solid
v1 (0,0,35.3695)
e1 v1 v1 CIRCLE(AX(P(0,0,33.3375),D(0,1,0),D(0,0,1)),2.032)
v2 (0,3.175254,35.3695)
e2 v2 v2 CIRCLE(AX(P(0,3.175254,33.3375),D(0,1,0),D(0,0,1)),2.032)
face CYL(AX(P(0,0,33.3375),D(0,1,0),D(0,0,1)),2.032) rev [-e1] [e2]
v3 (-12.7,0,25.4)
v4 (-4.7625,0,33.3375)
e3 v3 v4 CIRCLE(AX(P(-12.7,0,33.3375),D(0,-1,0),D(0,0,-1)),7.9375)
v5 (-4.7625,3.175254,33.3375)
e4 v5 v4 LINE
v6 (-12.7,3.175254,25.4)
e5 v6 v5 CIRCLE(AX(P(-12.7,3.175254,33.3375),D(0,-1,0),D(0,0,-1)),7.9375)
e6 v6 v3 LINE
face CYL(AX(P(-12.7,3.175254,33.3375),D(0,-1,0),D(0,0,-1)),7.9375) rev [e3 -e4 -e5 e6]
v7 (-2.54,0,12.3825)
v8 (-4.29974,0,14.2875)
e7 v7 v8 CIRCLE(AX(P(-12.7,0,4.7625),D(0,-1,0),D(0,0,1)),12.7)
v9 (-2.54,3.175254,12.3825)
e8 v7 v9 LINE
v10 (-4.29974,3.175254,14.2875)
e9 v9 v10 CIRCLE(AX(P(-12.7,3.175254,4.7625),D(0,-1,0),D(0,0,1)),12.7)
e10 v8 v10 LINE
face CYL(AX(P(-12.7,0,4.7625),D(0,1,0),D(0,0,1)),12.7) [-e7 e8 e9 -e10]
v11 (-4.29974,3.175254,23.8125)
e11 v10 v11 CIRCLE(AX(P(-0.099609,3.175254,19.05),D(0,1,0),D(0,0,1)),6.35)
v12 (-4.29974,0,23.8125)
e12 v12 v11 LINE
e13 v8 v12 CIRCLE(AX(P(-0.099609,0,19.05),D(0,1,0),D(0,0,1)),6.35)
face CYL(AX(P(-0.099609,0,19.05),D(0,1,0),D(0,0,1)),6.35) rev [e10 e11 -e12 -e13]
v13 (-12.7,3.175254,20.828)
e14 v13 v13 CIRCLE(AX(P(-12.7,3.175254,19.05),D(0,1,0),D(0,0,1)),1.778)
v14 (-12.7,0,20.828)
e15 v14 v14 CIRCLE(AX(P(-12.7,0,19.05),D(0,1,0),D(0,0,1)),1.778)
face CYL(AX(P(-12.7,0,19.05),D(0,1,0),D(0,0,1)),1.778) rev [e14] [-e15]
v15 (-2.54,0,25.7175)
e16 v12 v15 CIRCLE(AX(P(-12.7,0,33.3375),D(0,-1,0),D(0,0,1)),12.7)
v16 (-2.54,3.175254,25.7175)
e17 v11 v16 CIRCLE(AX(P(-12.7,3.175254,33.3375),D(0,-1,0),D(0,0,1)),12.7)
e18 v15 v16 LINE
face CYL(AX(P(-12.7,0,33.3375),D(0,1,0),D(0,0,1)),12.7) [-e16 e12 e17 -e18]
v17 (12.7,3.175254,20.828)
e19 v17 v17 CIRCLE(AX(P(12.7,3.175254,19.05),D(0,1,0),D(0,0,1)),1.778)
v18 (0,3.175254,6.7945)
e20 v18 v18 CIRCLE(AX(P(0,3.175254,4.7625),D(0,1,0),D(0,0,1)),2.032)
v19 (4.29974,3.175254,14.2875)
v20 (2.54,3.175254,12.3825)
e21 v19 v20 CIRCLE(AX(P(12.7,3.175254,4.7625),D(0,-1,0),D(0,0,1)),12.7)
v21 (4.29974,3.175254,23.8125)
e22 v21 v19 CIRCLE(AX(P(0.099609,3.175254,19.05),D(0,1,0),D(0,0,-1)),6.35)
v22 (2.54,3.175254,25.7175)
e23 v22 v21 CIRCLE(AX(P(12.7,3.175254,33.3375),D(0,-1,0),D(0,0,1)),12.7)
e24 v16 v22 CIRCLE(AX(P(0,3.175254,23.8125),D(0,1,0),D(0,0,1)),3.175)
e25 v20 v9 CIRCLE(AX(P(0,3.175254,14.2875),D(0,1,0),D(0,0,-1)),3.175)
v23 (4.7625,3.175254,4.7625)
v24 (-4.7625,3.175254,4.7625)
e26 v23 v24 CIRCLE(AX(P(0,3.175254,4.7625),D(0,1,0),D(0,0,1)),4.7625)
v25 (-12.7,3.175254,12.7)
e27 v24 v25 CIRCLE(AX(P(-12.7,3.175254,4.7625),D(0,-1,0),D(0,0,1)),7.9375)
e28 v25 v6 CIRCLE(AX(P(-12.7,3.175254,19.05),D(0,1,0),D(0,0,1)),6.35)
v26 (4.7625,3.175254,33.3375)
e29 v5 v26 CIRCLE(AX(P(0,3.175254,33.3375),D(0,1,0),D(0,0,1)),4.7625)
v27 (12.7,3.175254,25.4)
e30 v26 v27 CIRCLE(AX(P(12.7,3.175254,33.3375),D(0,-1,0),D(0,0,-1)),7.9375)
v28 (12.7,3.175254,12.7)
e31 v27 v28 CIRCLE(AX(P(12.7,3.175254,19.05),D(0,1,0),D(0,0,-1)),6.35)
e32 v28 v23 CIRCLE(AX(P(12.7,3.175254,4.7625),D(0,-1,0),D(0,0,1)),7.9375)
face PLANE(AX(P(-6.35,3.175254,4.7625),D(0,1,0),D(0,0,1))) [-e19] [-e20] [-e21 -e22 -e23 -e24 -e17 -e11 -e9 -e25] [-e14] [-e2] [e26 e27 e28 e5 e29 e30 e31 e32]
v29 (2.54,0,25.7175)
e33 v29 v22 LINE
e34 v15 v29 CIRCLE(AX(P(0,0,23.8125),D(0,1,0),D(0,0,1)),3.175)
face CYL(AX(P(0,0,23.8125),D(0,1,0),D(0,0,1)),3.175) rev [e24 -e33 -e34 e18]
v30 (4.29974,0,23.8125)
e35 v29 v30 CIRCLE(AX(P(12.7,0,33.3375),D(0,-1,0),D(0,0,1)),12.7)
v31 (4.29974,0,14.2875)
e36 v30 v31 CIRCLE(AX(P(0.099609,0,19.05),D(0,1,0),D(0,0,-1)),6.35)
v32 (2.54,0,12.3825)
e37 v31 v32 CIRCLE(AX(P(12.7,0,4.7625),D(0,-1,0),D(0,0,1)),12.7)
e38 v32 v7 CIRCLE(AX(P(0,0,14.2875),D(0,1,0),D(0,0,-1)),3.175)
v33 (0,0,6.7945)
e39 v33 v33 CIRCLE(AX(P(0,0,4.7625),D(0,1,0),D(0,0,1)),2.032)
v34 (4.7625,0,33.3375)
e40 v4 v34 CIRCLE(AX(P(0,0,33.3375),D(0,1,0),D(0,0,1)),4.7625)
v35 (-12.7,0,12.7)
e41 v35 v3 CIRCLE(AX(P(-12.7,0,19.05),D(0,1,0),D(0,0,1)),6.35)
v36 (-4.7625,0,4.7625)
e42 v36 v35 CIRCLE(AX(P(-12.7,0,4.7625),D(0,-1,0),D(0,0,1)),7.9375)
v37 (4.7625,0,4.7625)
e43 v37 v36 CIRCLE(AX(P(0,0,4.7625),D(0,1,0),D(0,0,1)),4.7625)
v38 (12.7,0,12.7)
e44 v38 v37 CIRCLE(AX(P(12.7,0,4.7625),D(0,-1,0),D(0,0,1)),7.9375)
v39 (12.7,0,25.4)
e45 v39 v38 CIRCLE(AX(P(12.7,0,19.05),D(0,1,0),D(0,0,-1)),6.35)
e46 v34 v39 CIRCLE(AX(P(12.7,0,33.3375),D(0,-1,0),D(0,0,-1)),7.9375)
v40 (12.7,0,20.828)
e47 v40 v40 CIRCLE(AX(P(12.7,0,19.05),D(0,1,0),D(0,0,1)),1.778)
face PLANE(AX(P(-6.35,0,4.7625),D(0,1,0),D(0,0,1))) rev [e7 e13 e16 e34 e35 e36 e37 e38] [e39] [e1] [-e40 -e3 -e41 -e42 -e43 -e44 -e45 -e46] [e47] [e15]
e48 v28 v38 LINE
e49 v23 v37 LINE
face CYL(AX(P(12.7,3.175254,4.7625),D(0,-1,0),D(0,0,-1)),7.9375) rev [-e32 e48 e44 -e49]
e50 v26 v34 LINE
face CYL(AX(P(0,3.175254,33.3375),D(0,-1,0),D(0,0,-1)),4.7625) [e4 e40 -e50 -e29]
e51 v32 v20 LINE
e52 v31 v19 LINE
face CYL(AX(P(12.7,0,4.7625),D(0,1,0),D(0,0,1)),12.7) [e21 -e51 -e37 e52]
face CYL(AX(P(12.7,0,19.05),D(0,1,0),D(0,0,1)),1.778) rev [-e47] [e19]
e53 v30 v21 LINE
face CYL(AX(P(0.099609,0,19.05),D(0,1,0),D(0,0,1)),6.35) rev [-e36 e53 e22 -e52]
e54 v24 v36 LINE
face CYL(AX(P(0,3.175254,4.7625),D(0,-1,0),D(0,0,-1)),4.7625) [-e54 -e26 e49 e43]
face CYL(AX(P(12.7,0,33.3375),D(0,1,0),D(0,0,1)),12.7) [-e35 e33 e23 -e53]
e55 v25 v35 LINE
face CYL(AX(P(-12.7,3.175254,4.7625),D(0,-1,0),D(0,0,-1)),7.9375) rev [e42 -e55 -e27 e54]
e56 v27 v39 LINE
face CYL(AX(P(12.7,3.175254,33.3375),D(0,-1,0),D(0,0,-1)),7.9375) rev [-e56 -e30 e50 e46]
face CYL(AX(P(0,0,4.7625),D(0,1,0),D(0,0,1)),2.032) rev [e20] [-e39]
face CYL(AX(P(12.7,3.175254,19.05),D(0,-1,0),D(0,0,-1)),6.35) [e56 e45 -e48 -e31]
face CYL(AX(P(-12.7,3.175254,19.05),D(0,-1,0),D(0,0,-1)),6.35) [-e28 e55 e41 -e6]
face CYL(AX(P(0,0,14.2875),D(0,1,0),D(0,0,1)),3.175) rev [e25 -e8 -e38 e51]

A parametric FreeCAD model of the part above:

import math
import FreeCAD as App
import Part
import Sketcher

V = App.Vector
Q = App.Units.Quantity

doc = App.newDocument("Part")
body = doc.addObject("PartDesign::Body", "Body")

# Sketch on XZ plane
sketch1 = doc.addObject("Sketcher::SketchObject", "Sketch")
body.addObject(sketch1)
sketch1.AttachmentSupport = (doc.XZ_Plane, [""])
sketch1.MapMode = "FlatFace"
sketch1.addGeometry(Part.ArcOfCircle(Part.Circle(V(0, 4.8, 0), V(0, 0, 1), 4.8), math.radians(180), math.radians(360)), False)
sketch1.addGeometry(Part.ArcOfCircle(Part.Circle(V(-12.7, 4.8, 0), V(0, 0, 1), 7.9), math.radians(0), math.radians(90)), False)
sketch1.addGeometry(Part.ArcOfCircle(Part.Circle(V(-12.7, 19.1, 0), V(0, 0, 1), 6.3), math.radians(90), math.radians(270)), False)
sketch1.addGeometry(Part.ArcOfCircle(Part.Circle(V(-12.7, 33.3, 0), V(0, 0, 1), 7.9), math.radians(-90), math.radians(0)), False)
sketch1.addGeometry(Part.ArcOfCircle(Part.Circle(V(0, 33.3, 0), V(0, 0, 1), 4.8), math.radians(0), math.radians(180)), False)
sketch1.addGeometry(Part.ArcOfCircle(Part.Circle(V(12.7, 33.3, 0), V(0, 0, 1), 7.9), math.radians(180), math.radians(270)), False)
sketch1.addGeometry(Part.ArcOfCircle(Part.Circle(V(12.7, 19.1, 0), V(0, 0, 1), 6.3), math.radians(-90), math.radians(90)), False)
sketch1.addGeometry(Part.ArcOfCircle(Part.Circle(V(12.7, 4.8, 0), V(0, 0, 1), 7.9), math.radians(90), math.radians(180)), False)
sketch1.addConstraint(Sketcher.Constraint("Tangent", 0, 1, 1, 1))
sketch1.addConstraint(Sketcher.Constraint("Tangent", 1, 2, 2, 2))
sketch1.addConstraint(Sketcher.Constraint("Tangent", 2, 1, 3, 1))
sketch1.addConstraint(Sketcher.Constraint("Tangent", 3, 2, 4, 2))
sketch1.addConstraint(Sketcher.Constraint("Tangent", 4, 1, 5, 1))
sketch1.addConstraint(Sketcher.Constraint("Tangent", 5, 2, 6, 2))
sketch1.addConstraint(Sketcher.Constraint("Tangent", 6, 1, 7, 1))
sketch1.addConstraint(Sketcher.Constraint("Tangent", 7, 2, 0, 2))
sketch1.addConstraint(Sketcher.Constraint("Equal", 1, 3))
sketch1.addConstraint(Sketcher.Constraint("Equal", 0, 4))
sketch1.addConstraint(Sketcher.Constraint("Equal", 3, 5))
sketch1.addConstraint(Sketcher.Constraint("Equal", 2, 6))
sketch1.addConstraint(Sketcher.Constraint("Equal", 5, 7))
sketch1.addConstraint(Sketcher.Constraint("Symmetric", 3, 3, 5, 3, -2))
sketch1.addConstraint(Sketcher.Constraint("PointOnObject", 0, 3, -2))
sketch1.addConstraint(Sketcher.Constraint("Horizontal", 0, 3, 1, 3))
sketch1.addConstraint(Sketcher.Constraint("Horizontal", 3, 3, 4, 3))
sketch1.addConstraint(Sketcher.Constraint("Vertical", 1, 3, 2, 3))
sketch1.addConstraint(Sketcher.Constraint("Vertical", 5, 3, 6, 3))
sketch1.addConstraint(Sketcher.Constraint("Radius", 2, Q("0.25 in")))
sketch1.addConstraint(Sketcher.Constraint("DistanceY", -1, 1, 2, 1, Q("1 in")))
sketch1.addConstraint(Sketcher.Constraint("Radius", 0, Q("0.1875 in")))
sketch1.addConstraint(Sketcher.Constraint("Radius", 1, Q("0.3125 in")))
pad1 = doc.addObject("PartDesign::Pad", "Pad")
body.addObject(pad1)
pad1.Profile = sketch1
pad1.Length = 3.175254
pad1.Reversed = True

# Sketch on XZ plane
sketch2 = doc.addObject("Sketcher::SketchObject", "Sketch001")
body.addObject(sketch2)
sketch2.AttachmentSupport = (doc.XZ_Plane, [""])
sketch2.MapMode = "FlatFace"
sketch2.AttachmentOffset = App.Placement(V(0, 0, -3.175254), App.Rotation())
sketch2.addGeometry(Part.Circle(V(0, 4.8, 0), V(0, 0, 1), 2), False)
sketch2.addGeometry(Part.Circle(V(12.7, 19.1, 0), V(0, 0, 1), 1.8), False)
sketch2.addGeometry(Part.Circle(V(0, 33.3, 0), V(0, 0, 1), 2), False)
sketch2.addGeometry(Part.Circle(V(-12.7, 19.1, 0), V(0, 0, 1), 1.8), False)
sketch2.addConstraint(Sketcher.Constraint("Equal", 0, 2))
sketch2.addConstraint(Sketcher.Constraint("Equal", 1, 3))
sketch2.addConstraint(Sketcher.Constraint("Symmetric", 1, 3, 3, 3, -2))
sketch2.addConstraint(Sketcher.Constraint("PointOnObject", 0, 3, -2))
sketch2.addConstraint(Sketcher.Constraint("PointOnObject", 2, 3, -2))
sketch2.addConstraint(Sketcher.Constraint("Diameter", 0, Q("0.16 in")))
sketch2.addConstraint(Sketcher.Constraint("Diameter", 1, Q("0.14 in")))
sketch2.addConstraint(Sketcher.Constraint("DistanceX", 3, 3, 1, 3, Q("1 in")))
sketch2.addConstraint(Sketcher.Constraint("DistanceY", -1, 1, 1, 3, Q("0.75 in")))
sketch2.addConstraint(Sketcher.Constraint("DistanceY", -1, 1, 0, 3, Q("0.1875 in")))
sketch2.addConstraint(Sketcher.Constraint("DistanceY", -1, 1, 2, 3, Q("1.3125 in")))
pocket1 = doc.addObject("PartDesign::Pocket", "Pocket")
body.addObject(pocket1)
pocket1.Profile = sketch2
pocket1.Type = "ThroughAll"
pocket1.Reversed = True

# Sketch on XZ plane
sketch3 = doc.addObject("Sketcher::SketchObject", "Sketch002")
body.addObject(sketch3)
sketch3.AttachmentSupport = (doc.XZ_Plane, [""])
sketch3.MapMode = "FlatFace"
sketch3.AttachmentOffset = App.Placement(V(0, 0, -3.175254), App.Rotation())
sketch3.addGeometry(Part.ArcOfCircle(Part.Circle(V(-0.1, 19.1, 0), V(0, 0, 1), 6.3), math.radians(131), math.radians(229)), False)
sketch3.addGeometry(Part.ArcOfCircle(Part.Circle(V(-12.7, 33.3, 0), V(0, 0, 1), 12.7), math.radians(-48.59), math.radians(-36.87)), False)
sketch3.addGeometry(Part.ArcOfCircle(Part.Circle(V(0, 23.8, 0), V(0, 0, 1), 3.2), math.radians(37), math.radians(143)), False)
sketch3.addGeometry(Part.ArcOfCircle(Part.Circle(V(12.7, 33.3, 0), V(0, 0, 1), 12.7), math.radians(-143.13), math.radians(-131.41)), False)
sketch3.addGeometry(Part.ArcOfCircle(Part.Circle(V(0.1, 19.1, 0), V(0, 0, 1), 6.3), math.radians(-49), math.radians(49)), False)
sketch3.addGeometry(Part.ArcOfCircle(Part.Circle(V(12.7, 4.8, 0), V(0, 0, 1), 12.7), math.radians(131.41), math.radians(143.13)), False)
sketch3.addGeometry(Part.ArcOfCircle(Part.Circle(V(0, 14.3, 0), V(0, 0, 1), 3.2), math.radians(-143), math.radians(-37)), False)
sketch3.addGeometry(Part.ArcOfCircle(Part.Circle(V(-12.7, 4.8, 0), V(0, 0, 1), 12.7), math.radians(36.87), math.radians(48.59)), False)
sketch3.addConstraint(Sketcher.Constraint("Tangent", 0, 1, 1, 1))
sketch3.addConstraint(Sketcher.Constraint("Tangent", 1, 2, 2, 2))
sketch3.addConstraint(Sketcher.Constraint("Tangent", 2, 1, 3, 1))
sketch3.addConstraint(Sketcher.Constraint("Tangent", 3, 2, 4, 2))
sketch3.addConstraint(Sketcher.Constraint("Tangent", 4, 1, 5, 1))
sketch3.addConstraint(Sketcher.Constraint("Tangent", 5, 2, 6, 2))
sketch3.addConstraint(Sketcher.Constraint("Tangent", 6, 1, 7, 1))
sketch3.addConstraint(Sketcher.Constraint("Tangent", 7, 2, 0, 2))
sketch3.addConstraint(Sketcher.Constraint("Equal", 1, 3))
sketch3.addConstraint(Sketcher.Constraint("Equal", 0, 4))
sketch3.addConstraint(Sketcher.Constraint("Equal", 3, 5))
sketch3.addConstraint(Sketcher.Constraint("Equal", 2, 6))
sketch3.addConstraint(Sketcher.Constraint("Equal", 5, 7))
sketch3.addConstraint(Sketcher.Constraint("Symmetric", 1, 3, 3, 3, -2))
sketch3.addConstraint(Sketcher.Constraint("Symmetric", 5, 3, 7, 3, -2))
sketch3.addConstraint(Sketcher.Constraint("Horizontal", 2, 3, 0, 1))
sketch3.addConstraint(Sketcher.Constraint("Horizontal", 6, 3, 4, 1))
sketch3.addConstraint(Sketcher.Constraint("Radius", 1, Q("0.5 in")))
sketch3.addConstraint(Sketcher.Constraint("Radius", 0, Q("0.25 in")))
sketch3.addConstraint(Sketcher.Constraint("Radius", 2, Q("0.125 in")))
sketch3.addConstraint(Sketcher.Constraint("DistanceX", 1, 3, 3, 3, Q("1 in")))
sketch3.addConstraint(Sketcher.Constraint("DistanceY", -1, 1, 0, 3, Q("0.75 in")))
pocket2 = doc.addObject("PartDesign::Pocket", "Pocket001")
body.addObject(pocket2)
pocket2.Profile = sketch3
pocket2.Type = "ThroughAll"
pocket2.Reversed = True

doc.recompute()
